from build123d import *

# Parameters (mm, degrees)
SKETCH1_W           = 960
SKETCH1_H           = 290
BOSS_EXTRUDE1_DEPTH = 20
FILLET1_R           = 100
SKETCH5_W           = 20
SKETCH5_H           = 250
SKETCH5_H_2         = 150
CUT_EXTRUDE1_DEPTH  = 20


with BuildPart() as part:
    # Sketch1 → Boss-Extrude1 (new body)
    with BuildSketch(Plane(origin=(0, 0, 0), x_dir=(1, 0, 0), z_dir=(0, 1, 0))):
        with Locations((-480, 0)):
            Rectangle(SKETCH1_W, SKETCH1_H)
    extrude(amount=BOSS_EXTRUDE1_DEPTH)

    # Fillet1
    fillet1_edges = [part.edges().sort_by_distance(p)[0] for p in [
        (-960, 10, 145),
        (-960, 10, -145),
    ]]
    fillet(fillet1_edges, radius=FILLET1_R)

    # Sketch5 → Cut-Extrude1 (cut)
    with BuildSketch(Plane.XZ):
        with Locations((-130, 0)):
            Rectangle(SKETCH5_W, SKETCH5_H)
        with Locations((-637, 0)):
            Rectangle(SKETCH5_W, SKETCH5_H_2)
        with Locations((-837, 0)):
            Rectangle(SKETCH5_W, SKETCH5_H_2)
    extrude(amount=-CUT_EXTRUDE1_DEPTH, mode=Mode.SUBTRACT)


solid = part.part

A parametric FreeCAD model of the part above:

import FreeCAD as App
import Part
import Sketcher
Q = App.Units.Quantity


def edges_at(feature, points):
    """Names of the edges that pass closest to the given points."""
    edges = feature.Shape.Edges
    near = lambda p: min(range(len(edges)), key=lambda i: edges[i].distToShape(Part.Vertex(*p))[0])
    return sorted({f"Edge{near(p) + 1}" for p in points})


def add_polygon(sketch, points):
    """Adds a closed chain of lines whose ends are joined by coincident constraints."""
    first, n = sketch.GeometryCount, len(points)
    for a, b in zip(points, points[1:] + points[:1]):
        sketch.addGeometry(Part.LineSegment(App.Vector(*a, 0), App.Vector(*b, 0)), False)
    for i in range(n):
        sketch.addConstraint(Sketcher.Constraint("Coincident", first + i, 2, first + (i + 1) % n, 1))

doc = App.newDocument("Part")
params = doc.addObject("Spreadsheet::Sheet", "Params")
for row, (alias, value) in enumerate([
    ("sketch1_width", "960 mm"),
    ("sketch1_height", "290 mm"),
    ("pad1_length", "20 mm"),
    ("fillet_radius", "100 mm"),
    ("sketch2_width", "20 mm"),
    ("sketch2_height", "250 mm"),
    ("sketch2_height2", "150 mm"),
    ("pocket1_length", "20 mm"),
], start=1):
    params.set(f"A{row}", alias)
    params.set(f"B{row}", "=" + value)
    params.setAlias(f"B{row}", alias)

body = doc.addObject("PartDesign::Body", "Body")

# Sketch on XZ plane
sketch1 = body.newObject("Sketcher::SketchObject", "Sketch")
sketch1.AttachmentSupport = (doc.getObject("XZ_Plane"), [""])
sketch1.MapMode = "FlatFace"
add_polygon(sketch1, [(-960, -145), (-960, 145), (0, 145), (0, -145)])  # lines 0-3
sketch1.addConstraint(Sketcher.Constraint("Vertical", 0))
sketch1.addConstraint(Sketcher.Constraint("Horizontal", 1))
sketch1.addConstraint(Sketcher.Constraint("Vertical", 2))
sketch1.addConstraint(Sketcher.Constraint("Horizontal", 3))
sketch1.addConstraint(Sketcher.Constraint("Symmetric", 1, 2, 2, 2, -1, 1))
sketch1.addConstraint(Sketcher.Constraint("DistanceX", 1, 1, 1, 2, Q("960 mm")))
sketch1.addConstraint(Sketcher.Constraint("DistanceY", 0, 1, 0, 2, Q("290 mm")))
sketch1.setExpression("Constraints[9]", "Params.sketch1_width")
sketch1.setExpression("Constraints[10]", "Params.sketch1_height")
pad1 = body.newObject("PartDesign::Pad", "Pad")
pad1.Profile = sketch1
pad1.setExpression("Length", "Params.pad1_length")
pad1.Reversed = True
doc.recompute()

fillet = body.newObject("PartDesign::Fillet", "Fillet")
fillet.Base = (pad1, edges_at(pad1, [(-960, 10, 145), (-960, 10, -145)]))
fillet.setExpression("Radius", "Params.fillet_radius")

# Sketch on XZ plane
sketch2 = body.newObject("Sketcher::SketchObject", "Sketch001")
sketch2.AttachmentSupport = (doc.getObject("XZ_Plane"), [""])
sketch2.MapMode = "FlatFace"
add_polygon(sketch2, [(-140, 125), (-140, -125), (-120, -125), (-120, 125)])  # lines 0-3
add_polygon(sketch2, [(-647, 75), (-647, -75), (-627, -75), (-627, 75)])  # lines 4-7
add_polygon(sketch2, [(-847, 75), (-847, -75), (-827, -75), (-827, 75)])  # lines 8-11
sketch2.addConstraint(Sketcher.Constraint("Vertical", 0))
sketch2.addConstraint(Sketcher.Constraint("Horizontal", 1))
sketch2.addConstraint(Sketcher.Constraint("Vertical", 2))
sketch2.addConstraint(Sketcher.Constraint("Horizontal", 3))
sketch2.addConstraint(Sketcher.Constraint("Vertical", 4))
sketch2.addConstraint(Sketcher.Constraint("Horizontal", 5))
sketch2.addConstraint(Sketcher.Constraint("Vertical", 6))
sketch2.addConstraint(Sketcher.Constraint("Horizontal", 7))
sketch2.addConstraint(Sketcher.Constraint("Vertical", 8))
sketch2.addConstraint(Sketcher.Constraint("Horizontal", 9))
sketch2.addConstraint(Sketcher.Constraint("Vertical", 10))
sketch2.addConstraint(Sketcher.Constraint("Horizontal", 11))
sketch2.addConstraint(Sketcher.Constraint("Horizontal", 5, 2, 8, 2))
sketch2.addConstraint(Sketcher.Constraint("Horizontal", 7, 2, 10, 2))
sketch2.addConstraint(Sketcher.Constraint("Equal", 3, 5))
sketch2.addConstraint(Sketcher.Constraint("Equal", 7, 9))
sketch2.addConstraint(Sketcher.Constraint("DistanceX", 1, 1, 1, 2, Q("20 mm")))
sketch2.addConstraint(Sketcher.Constraint("DistanceY", 0, 2, 0, 1, Q("250 mm")))
sketch2.addConstraint(Sketcher.Constraint("DistanceY", 4, 2, 4, 1, Q("150 mm")))
sketch2.addConstraint(Sketcher.Constraint("DistanceX", 0, 2, -1, 1, Q("140 mm")))
sketch2.addConstraint(Sketcher.Constraint("DistanceY", 0, 2, -1, 1, Q("125 mm")))
sketch2.addConstraint(Sketcher.Constraint("DistanceX", 4, 2, -1, 1, Q("647 mm")))
sketch2.addConstraint(Sketcher.Constraint("DistanceY", 4, 2, -1, 1, Q("75 mm")))
sketch2.addConstraint(Sketcher.Constraint("DistanceX", 8, 2, -1, 1, Q("847 mm")))
sketch2.setExpression("Constraints[28]", "Params.sketch2_width")
sketch2.setExpression("Constraints[29]", "Params.sketch2_height")
sketch2.setExpression("Constraints[30]", "Params.sketch2_height2")
pocket1 = body.newObject("PartDesign::Pocket", "Pocket")
pocket1.Profile = sketch2
pocket1.setExpression("Length", "Params.pocket1_length")

doc.recompute()
